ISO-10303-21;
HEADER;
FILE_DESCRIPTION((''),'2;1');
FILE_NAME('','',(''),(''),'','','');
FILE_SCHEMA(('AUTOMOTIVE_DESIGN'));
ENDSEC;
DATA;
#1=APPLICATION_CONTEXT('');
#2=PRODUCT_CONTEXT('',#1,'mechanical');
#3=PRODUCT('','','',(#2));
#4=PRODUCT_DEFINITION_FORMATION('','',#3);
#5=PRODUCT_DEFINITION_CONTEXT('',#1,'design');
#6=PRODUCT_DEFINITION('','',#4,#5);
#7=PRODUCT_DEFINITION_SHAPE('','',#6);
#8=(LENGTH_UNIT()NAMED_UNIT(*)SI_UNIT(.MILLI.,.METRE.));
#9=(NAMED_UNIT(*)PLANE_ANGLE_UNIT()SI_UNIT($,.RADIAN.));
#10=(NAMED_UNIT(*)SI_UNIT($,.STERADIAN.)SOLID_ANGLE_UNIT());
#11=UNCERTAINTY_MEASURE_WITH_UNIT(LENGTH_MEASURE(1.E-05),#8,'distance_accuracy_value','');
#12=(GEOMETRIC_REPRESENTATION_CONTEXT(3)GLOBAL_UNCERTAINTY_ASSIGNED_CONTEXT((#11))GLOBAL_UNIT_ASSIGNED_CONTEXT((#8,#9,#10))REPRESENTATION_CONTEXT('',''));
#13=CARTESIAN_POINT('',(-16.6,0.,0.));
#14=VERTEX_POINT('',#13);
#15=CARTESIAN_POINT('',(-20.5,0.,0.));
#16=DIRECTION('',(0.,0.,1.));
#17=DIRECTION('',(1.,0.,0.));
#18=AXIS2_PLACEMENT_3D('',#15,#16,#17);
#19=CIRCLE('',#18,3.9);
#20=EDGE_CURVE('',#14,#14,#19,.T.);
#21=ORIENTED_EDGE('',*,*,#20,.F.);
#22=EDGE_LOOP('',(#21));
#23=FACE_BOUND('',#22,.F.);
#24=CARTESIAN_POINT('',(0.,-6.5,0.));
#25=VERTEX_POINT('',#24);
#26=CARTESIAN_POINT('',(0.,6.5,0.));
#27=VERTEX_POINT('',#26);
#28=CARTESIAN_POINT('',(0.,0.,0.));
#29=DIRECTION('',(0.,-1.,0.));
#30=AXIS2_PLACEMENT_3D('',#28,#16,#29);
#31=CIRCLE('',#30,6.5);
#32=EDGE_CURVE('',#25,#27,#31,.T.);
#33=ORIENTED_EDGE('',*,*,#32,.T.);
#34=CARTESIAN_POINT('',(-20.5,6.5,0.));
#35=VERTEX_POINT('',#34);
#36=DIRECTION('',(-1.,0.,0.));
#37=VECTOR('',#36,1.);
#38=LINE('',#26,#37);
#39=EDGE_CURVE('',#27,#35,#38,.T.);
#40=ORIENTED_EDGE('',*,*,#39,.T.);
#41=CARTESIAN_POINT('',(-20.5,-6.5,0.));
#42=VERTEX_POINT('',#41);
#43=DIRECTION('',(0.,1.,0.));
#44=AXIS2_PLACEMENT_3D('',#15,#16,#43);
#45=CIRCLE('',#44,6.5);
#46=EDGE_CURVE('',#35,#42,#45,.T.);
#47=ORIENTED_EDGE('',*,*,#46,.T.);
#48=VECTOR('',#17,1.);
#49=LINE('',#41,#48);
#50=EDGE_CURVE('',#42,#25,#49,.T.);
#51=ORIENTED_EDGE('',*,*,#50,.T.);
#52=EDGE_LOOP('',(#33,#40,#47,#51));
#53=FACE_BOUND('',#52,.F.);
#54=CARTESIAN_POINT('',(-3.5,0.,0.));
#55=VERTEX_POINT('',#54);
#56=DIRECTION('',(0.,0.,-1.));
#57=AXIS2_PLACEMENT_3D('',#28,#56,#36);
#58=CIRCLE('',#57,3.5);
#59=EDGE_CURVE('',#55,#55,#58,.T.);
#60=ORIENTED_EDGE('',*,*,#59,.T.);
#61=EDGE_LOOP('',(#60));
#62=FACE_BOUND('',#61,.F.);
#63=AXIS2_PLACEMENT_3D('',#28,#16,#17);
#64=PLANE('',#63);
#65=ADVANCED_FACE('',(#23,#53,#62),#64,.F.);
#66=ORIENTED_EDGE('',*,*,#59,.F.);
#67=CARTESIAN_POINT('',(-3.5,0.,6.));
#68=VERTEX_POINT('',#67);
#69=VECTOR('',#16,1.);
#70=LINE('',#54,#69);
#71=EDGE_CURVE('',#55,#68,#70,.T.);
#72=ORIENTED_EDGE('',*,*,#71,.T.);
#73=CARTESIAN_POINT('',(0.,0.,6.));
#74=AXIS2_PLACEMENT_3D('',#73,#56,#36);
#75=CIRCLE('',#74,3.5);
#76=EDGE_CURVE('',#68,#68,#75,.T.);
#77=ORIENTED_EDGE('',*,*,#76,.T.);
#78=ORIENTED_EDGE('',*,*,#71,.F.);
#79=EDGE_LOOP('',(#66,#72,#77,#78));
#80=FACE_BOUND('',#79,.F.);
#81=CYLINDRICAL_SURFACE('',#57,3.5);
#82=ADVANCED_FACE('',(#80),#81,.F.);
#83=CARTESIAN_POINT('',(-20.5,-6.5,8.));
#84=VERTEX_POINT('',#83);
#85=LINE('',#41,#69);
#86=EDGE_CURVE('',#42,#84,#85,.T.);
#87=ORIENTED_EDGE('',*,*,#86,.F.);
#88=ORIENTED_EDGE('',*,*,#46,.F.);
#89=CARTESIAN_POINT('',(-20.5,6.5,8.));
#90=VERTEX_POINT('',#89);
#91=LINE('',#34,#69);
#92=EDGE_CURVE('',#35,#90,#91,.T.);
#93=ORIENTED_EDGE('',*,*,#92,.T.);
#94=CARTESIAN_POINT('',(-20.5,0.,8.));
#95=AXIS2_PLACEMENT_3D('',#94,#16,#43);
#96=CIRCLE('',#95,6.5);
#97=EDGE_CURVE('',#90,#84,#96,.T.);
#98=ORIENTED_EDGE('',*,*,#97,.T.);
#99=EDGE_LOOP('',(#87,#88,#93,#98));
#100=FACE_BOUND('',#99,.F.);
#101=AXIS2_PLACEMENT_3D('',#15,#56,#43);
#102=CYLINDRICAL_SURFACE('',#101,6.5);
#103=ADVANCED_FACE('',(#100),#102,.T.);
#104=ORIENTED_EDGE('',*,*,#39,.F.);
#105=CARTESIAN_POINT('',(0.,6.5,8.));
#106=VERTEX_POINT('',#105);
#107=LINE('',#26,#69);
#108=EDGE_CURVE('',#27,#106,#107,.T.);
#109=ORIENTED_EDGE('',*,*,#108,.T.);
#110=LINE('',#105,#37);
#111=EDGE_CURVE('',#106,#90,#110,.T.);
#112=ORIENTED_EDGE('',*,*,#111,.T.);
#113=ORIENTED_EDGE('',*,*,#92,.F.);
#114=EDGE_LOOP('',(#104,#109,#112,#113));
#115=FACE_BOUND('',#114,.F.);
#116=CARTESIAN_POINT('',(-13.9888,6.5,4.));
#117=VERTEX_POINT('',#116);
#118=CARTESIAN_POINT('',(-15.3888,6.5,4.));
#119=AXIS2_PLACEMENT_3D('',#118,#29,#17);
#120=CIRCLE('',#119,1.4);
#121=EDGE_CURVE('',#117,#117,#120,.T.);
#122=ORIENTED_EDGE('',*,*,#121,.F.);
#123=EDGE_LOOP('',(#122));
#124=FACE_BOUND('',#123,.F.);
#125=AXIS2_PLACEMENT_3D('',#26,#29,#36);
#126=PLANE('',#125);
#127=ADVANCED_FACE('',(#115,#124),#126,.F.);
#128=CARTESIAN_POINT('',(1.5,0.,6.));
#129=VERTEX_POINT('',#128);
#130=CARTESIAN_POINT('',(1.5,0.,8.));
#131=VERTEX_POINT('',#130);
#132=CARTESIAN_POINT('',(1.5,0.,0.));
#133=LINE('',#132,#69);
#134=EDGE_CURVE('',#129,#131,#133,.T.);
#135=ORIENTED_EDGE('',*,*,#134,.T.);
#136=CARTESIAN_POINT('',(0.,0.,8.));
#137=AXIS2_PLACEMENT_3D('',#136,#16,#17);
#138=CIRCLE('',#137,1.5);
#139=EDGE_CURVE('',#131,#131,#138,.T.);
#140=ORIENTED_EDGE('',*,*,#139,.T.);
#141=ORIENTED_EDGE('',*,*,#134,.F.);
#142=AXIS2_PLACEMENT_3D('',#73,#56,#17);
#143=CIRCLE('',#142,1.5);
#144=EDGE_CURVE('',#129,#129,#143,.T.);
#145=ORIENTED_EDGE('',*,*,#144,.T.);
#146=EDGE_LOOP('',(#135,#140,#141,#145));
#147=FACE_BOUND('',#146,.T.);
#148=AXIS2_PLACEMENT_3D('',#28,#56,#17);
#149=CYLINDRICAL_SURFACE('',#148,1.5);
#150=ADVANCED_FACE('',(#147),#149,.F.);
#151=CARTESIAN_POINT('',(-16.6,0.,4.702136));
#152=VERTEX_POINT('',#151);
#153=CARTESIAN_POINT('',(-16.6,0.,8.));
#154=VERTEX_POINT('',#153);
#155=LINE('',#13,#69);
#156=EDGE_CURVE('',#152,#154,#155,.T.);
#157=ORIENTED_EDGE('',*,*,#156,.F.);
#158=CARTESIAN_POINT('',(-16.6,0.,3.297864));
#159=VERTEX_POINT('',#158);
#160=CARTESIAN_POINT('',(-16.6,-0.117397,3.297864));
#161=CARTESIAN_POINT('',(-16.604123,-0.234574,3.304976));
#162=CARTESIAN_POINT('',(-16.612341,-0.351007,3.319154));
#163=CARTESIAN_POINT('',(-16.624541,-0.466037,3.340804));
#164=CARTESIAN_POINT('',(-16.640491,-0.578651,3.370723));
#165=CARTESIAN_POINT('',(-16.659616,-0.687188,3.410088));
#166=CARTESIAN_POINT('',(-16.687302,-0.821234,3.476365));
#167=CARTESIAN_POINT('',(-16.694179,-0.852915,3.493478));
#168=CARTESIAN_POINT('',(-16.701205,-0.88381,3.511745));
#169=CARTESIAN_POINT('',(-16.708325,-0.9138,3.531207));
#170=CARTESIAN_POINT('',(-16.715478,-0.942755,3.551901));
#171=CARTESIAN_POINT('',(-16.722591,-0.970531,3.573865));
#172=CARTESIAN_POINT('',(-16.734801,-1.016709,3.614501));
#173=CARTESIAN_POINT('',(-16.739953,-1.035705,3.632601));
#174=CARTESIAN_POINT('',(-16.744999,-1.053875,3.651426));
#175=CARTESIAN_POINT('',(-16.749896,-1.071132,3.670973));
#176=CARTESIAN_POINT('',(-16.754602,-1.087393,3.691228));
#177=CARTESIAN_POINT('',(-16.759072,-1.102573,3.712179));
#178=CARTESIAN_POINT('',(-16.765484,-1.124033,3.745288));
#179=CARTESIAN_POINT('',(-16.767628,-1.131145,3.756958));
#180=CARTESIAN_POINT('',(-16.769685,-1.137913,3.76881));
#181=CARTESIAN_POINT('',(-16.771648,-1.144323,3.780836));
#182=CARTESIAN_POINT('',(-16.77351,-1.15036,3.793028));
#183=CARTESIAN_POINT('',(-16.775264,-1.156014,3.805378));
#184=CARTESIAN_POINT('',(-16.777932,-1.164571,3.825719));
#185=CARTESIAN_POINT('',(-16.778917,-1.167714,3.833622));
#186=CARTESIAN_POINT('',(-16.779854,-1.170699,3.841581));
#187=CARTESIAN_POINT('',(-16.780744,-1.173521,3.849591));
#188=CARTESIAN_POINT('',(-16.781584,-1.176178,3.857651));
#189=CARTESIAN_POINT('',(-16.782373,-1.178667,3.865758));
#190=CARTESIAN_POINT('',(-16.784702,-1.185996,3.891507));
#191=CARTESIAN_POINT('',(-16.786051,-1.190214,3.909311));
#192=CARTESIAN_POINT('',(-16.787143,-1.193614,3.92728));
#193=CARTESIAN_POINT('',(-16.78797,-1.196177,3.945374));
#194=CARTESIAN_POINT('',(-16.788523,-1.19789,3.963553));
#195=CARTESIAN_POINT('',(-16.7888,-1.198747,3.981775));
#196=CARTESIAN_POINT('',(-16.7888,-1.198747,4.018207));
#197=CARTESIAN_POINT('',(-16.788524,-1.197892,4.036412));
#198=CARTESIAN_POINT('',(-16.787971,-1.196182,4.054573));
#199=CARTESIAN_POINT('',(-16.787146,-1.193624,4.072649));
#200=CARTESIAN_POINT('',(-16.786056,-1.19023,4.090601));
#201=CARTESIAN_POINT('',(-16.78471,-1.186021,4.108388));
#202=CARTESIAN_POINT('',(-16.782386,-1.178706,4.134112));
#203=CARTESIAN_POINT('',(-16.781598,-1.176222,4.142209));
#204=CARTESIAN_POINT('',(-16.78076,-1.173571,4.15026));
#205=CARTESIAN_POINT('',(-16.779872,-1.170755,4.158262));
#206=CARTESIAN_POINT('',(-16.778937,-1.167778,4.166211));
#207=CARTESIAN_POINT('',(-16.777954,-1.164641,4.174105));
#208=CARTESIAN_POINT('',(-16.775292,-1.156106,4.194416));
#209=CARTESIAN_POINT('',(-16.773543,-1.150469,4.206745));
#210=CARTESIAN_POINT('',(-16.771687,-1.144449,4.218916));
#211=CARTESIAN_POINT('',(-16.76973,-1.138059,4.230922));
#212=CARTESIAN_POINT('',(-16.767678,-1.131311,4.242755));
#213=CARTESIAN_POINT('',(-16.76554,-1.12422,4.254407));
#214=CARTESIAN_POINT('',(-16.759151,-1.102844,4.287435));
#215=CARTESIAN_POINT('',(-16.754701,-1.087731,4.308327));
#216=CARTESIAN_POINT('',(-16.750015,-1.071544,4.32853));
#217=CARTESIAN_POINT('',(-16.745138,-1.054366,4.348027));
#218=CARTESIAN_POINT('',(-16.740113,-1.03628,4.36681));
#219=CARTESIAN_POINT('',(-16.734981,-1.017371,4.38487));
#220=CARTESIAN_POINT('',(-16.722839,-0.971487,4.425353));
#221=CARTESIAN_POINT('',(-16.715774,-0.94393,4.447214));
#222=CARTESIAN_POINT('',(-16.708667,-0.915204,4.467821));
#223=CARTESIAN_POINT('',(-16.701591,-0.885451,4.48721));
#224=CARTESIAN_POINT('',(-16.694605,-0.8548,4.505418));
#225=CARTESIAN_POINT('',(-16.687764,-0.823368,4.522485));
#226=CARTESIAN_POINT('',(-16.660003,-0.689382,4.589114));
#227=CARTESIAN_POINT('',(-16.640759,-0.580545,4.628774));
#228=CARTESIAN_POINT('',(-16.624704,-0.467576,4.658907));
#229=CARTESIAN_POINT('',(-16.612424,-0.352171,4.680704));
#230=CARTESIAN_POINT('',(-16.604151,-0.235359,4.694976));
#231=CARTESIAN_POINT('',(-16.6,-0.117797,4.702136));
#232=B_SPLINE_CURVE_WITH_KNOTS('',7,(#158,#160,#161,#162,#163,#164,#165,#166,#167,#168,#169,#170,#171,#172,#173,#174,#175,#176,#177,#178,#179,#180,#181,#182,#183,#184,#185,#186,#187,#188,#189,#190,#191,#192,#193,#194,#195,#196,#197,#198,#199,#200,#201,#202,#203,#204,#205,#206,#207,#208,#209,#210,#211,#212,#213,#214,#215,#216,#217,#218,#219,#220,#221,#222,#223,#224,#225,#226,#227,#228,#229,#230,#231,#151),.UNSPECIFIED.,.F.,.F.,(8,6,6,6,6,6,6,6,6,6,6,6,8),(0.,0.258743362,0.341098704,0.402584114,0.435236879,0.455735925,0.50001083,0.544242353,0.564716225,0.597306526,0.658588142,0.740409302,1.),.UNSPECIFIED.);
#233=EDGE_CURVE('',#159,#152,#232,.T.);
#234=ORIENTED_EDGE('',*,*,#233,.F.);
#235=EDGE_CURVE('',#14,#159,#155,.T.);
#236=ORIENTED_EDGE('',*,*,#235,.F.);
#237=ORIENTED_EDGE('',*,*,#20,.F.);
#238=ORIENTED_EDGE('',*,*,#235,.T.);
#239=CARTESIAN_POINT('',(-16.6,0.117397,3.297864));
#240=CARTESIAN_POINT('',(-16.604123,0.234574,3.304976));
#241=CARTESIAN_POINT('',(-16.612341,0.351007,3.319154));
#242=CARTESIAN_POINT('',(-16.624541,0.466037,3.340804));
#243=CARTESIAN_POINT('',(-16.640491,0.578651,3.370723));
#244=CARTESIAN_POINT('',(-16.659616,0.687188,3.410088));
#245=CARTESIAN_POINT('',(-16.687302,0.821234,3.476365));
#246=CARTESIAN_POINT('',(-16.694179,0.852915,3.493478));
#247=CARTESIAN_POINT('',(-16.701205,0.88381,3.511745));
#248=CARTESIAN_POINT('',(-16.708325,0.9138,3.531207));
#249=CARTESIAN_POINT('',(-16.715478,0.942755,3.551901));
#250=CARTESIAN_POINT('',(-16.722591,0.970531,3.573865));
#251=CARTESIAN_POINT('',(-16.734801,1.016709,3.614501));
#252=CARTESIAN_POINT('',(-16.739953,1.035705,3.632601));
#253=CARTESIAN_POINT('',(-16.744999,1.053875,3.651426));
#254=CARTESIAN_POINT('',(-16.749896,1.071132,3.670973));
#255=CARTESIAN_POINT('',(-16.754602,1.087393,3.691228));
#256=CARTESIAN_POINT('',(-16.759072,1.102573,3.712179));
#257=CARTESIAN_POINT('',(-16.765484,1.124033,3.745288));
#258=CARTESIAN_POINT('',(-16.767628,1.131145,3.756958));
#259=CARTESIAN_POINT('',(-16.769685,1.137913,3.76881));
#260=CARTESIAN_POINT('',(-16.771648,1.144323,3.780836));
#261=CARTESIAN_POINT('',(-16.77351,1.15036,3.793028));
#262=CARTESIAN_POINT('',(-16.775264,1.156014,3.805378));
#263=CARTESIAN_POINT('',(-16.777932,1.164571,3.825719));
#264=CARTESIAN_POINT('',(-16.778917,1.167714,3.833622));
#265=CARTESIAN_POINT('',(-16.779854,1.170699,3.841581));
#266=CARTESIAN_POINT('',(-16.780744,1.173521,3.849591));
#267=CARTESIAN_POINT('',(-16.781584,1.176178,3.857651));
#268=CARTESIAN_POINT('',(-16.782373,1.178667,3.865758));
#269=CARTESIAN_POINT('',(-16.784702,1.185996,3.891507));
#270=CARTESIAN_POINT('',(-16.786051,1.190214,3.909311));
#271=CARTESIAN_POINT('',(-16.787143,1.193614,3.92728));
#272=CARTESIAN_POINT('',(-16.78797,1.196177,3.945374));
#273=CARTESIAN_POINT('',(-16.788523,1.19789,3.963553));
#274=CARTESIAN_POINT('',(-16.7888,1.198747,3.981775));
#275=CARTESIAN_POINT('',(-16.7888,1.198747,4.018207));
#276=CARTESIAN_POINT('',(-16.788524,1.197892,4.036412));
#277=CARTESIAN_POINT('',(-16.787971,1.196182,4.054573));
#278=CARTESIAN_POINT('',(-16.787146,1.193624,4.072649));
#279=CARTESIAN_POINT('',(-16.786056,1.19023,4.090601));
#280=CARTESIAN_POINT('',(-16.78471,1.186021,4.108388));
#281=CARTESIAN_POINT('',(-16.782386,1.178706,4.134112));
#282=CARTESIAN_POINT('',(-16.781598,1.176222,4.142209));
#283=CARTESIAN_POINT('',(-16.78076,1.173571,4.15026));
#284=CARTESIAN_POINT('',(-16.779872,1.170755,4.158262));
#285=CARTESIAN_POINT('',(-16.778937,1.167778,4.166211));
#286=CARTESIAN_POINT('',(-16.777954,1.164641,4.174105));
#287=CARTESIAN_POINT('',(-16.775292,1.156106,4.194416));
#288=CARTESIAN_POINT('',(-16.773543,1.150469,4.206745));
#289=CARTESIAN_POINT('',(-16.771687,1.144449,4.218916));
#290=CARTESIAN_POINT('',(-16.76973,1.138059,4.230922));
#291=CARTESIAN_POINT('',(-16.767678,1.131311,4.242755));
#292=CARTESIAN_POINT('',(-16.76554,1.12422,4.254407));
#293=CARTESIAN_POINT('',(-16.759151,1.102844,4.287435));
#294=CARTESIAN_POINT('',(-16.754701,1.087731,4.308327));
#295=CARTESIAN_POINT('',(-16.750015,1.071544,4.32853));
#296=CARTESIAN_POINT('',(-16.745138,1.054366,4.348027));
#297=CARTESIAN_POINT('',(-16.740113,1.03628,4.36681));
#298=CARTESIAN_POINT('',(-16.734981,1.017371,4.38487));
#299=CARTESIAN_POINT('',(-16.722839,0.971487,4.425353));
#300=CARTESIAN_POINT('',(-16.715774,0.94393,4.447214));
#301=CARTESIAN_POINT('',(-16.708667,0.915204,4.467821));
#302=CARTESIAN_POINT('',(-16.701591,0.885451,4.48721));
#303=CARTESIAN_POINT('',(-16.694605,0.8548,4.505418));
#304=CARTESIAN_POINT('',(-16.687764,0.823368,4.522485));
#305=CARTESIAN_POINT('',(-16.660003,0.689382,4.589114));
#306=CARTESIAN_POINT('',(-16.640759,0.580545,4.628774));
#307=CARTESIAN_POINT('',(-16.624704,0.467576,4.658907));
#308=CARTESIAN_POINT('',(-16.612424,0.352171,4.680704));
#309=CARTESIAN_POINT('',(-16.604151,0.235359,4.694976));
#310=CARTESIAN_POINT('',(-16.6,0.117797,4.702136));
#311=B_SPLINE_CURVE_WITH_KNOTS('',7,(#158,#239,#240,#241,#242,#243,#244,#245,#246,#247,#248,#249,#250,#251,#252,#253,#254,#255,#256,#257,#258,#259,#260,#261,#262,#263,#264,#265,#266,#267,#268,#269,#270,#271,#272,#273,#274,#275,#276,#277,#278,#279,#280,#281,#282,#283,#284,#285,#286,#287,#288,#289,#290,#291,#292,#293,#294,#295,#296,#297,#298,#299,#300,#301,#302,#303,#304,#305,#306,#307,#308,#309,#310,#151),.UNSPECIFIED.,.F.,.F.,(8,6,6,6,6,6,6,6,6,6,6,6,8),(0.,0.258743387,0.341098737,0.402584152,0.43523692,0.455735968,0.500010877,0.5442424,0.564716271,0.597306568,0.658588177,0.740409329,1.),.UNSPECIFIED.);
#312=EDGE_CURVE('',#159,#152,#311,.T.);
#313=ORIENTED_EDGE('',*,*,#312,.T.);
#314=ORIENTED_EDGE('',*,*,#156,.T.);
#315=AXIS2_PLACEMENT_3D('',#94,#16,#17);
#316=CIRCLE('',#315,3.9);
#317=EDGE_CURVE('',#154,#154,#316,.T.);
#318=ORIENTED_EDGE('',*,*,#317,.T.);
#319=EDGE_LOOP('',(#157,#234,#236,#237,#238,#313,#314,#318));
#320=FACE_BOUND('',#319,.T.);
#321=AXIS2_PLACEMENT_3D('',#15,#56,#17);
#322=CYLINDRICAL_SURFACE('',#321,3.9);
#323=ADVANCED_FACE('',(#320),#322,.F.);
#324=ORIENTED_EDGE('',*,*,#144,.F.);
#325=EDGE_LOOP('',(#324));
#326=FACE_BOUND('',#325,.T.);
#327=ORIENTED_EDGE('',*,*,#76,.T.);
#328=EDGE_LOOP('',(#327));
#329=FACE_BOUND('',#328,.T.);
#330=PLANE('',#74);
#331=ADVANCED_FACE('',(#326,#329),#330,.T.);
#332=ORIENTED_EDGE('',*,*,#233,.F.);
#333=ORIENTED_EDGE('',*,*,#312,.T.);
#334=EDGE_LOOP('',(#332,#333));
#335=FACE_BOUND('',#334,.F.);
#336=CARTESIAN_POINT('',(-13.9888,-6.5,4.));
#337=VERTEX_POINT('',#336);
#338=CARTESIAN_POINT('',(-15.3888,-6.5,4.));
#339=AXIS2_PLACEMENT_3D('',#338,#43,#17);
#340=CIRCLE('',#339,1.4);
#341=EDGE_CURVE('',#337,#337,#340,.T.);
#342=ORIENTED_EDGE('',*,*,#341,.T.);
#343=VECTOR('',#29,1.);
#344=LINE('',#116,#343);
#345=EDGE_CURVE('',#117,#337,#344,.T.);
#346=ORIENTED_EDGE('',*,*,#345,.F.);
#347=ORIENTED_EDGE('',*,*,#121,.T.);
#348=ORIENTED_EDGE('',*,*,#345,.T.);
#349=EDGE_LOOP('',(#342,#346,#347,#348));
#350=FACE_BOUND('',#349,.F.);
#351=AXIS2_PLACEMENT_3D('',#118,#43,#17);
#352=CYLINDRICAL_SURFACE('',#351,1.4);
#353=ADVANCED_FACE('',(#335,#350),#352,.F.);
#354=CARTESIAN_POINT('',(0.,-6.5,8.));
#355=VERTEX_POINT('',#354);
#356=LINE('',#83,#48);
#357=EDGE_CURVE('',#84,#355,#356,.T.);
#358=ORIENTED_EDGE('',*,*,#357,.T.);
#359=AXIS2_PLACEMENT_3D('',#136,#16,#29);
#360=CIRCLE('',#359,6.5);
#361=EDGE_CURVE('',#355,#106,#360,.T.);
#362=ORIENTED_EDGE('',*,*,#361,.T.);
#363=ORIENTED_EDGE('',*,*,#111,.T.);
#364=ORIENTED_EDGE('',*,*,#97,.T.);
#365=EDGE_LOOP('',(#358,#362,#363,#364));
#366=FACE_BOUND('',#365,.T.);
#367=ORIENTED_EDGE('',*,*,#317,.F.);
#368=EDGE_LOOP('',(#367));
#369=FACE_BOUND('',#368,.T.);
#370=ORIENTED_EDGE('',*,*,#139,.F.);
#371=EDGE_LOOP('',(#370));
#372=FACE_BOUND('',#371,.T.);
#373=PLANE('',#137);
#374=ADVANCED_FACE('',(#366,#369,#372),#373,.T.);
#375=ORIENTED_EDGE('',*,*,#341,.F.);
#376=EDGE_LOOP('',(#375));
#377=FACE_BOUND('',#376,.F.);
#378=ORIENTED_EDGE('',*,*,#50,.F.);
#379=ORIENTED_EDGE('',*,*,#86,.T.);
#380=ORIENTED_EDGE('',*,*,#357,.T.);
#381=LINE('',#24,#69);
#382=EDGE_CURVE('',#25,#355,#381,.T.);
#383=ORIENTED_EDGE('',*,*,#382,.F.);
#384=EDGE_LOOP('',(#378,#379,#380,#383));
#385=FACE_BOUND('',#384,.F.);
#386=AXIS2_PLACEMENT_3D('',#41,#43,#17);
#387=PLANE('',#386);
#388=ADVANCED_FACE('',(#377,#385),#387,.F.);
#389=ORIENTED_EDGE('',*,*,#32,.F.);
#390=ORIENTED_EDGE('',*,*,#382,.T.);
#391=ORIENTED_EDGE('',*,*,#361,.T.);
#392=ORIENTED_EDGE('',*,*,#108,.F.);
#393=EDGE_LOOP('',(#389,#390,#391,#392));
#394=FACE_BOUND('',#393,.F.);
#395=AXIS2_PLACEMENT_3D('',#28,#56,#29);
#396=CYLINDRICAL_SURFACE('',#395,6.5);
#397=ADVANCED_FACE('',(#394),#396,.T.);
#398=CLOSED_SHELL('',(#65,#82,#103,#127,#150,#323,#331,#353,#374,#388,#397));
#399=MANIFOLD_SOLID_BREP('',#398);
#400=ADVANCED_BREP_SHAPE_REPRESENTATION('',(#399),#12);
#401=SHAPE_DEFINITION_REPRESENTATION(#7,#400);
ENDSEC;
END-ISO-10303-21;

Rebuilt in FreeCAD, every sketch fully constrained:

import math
import FreeCAD as App
import Part
import Sketcher

V = App.Vector

doc = App.newDocument("Part")
params = doc.addObject("Spreadsheet::Sheet", "Params")
for row, (alias, value) in enumerate([
    ("sketch1_diameter", "3 mm"),
    ("sketch1_diameter2", "7.8 mm"),
    ("sketch1_radius", "6.5 mm"),
    ("sketch1_width", "20.5 mm"),
    ("pad1_length", "8 mm"),
    ("sketch2_diameter", "7 mm"),
    ("pocket1_length", "6 mm"),
    ("sketch3_diameter", "2.8 mm"),
], start=1):
    params.set(f"A{row}", alias)
    params.set(f"B{row}", "=" + value)
    params.setAlias(f"B{row}", alias)

body = doc.addObject("PartDesign::Body", "Body")

sketch1 = doc.addObject("Sketcher::SketchObject", "Sketch")
body.addObject(sketch1)
sketch1.AttachmentSupport = (doc.XY_Plane, [""])
sketch1.MapMode = "FlatFace"
sketch1.addGeometry(Part.ArcOfCircle(Part.Circle(V(0, 0, 0), V(0, 0, 1), 6.5), math.radians(-90), math.radians(90)), False)
sketch1.addGeometry(Part.LineSegment(V(0, 6.5, 0), V(-20.5, 6.5, 0)), False)
sketch1.addGeometry(Part.ArcOfCircle(Part.Circle(V(-20.5, 0, 0), V(0, 0, 1), 6.5), math.radians(90), math.radians(270)), False)
sketch1.addGeometry(Part.LineSegment(V(-20.5, -6.5, 0), V(0, -6.5, 0)), False)
sketch1.addGeometry(Part.Circle(V(-20.5, 0, 0), V(0, 0, 1), 3.9), False)
sketch1.addGeometry(Part.Circle(V(0, 0, 0), V(0, 0, 1), 1.5), False)
sketch1.addConstraint(Sketcher.Constraint("Tangent", 0, 2, 1, 1))
sketch1.addConstraint(Sketcher.Constraint("Tangent", 1, 2, 2, 1))
sketch1.addConstraint(Sketcher.Constraint("Tangent", 2, 2, 3, 1))
sketch1.addConstraint(Sketcher.Constraint("Tangent", 3, 2, 0, 1))
sketch1.addConstraint(Sketcher.Constraint("Horizontal", 1))
sketch1.addConstraint(Sketcher.Constraint("Horizontal", 3))
sketch1.addConstraint(Sketcher.Constraint("Coincident", 0, 3, -1, 1))
sketch1.addConstraint(Sketcher.Constraint("Coincident", 5, 3, -1, 1))
sketch1.addConstraint(Sketcher.Constraint("Coincident", 4, 3, 2, 3))
sketch1.addConstraint(Sketcher.Constraint("Diameter", 5, 3.0))
sketch1.addConstraint(Sketcher.Constraint("Diameter", 4, 7.8))
sketch1.addConstraint(Sketcher.Constraint("Radius", 0, 6.5))
sketch1.addConstraint(Sketcher.Constraint("DistanceX", 1, 2, 1, 1, 20.5))
sketch1.setExpression("Constraints[9]", "Params.sketch1_diameter")
sketch1.setExpression("Constraints[10]", "Params.sketch1_diameter2")
sketch1.setExpression("Constraints[11]", "Params.sketch1_radius")
sketch1.setExpression("Constraints[12]", "Params.sketch1_width")
pad1 = doc.addObject("PartDesign::Pad", "Pad")
body.addObject(pad1)
pad1.Profile = sketch1
pad1.setExpression("Length", "Params.pad1_length")

sketch2 = doc.addObject("Sketcher::SketchObject", "Sketch001")
body.addObject(sketch2)
sketch2.AttachmentSupport = (doc.XY_Plane, [""])
sketch2.MapMode = "FlatFace"
sketch2.addGeometry(Part.Circle(V(0, 0, 0), V(0, 0, 1), 3.5), False)
sketch2.addConstraint(Sketcher.Constraint("Coincident", 0, 3, -1, 1))
sketch2.addConstraint(Sketcher.Constraint("Diameter", 0, 7.0))
sketch2.setExpression("Constraints[1]", "Params.sketch2_diameter")
pocket1 = doc.addObject("PartDesign::Pocket", "Pocket")
body.addObject(pocket1)
pocket1.Profile = sketch2
pocket1.setExpression("Length", "Params.pocket1_length")
pocket1.Reversed = True

sketch3 = doc.addObject("Sketcher::SketchObject", "Sketch002")
body.addObject(sketch3)
sketch3.AttachmentSupport = (doc.XZ_Plane, [""])
sketch3.MapMode = "FlatFace"
sketch3.AttachmentOffset = App.Placement(V(0, 0, -6.5), App.Rotation())
sketch3.addGeometry(Part.Circle(V(-15.4, 4, 0), V(0, 0, 1), 1.4), False)
sketch3.addConstraint(Sketcher.Constraint("Diameter", 0, 2.8))
sketch3.addConstraint(Sketcher.Constraint("DistanceY", -1, 1, 0, 3, 4.0))
sketch3.addConstraint(Sketcher.Constraint("DistanceX", 0, 3, -1, 1, 15.3888))
sketch3.setExpression("Constraints[0]", "Params.sketch3_diameter")
pocket2 = doc.addObject("PartDesign::Pocket", "Pocket001")
body.addObject(pocket2)
pocket2.Profile = sketch3
pocket2.Type = "ThroughAll"
pocket2.Reversed = True

doc.recompute()
